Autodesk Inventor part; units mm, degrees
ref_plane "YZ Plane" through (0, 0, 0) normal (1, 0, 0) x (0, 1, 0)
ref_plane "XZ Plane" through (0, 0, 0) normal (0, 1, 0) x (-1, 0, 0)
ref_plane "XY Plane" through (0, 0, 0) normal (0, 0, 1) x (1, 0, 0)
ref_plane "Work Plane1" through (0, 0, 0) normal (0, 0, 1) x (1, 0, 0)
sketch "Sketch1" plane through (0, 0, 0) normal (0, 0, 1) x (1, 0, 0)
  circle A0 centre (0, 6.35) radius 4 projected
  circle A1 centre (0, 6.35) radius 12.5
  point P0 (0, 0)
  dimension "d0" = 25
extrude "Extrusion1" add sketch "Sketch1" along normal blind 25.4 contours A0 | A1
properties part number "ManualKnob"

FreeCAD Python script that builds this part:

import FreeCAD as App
import Part
import Sketcher

V = App.Vector

doc = App.newDocument("Part")
body = doc.addObject("PartDesign::Body", "Body")

# Sketch on XY plane
sketch1 = body.newObject("Sketcher::SketchObject", "Sketch")
sketch1.AttachmentSupport = (doc.getObject("XY_Plane"), [""])
sketch1.MapMode = "FlatFace"
sketch1.addGeometry(Part.Circle(V(0, 6, 0), V(0, 0, 1), 12), False)
sketch1.addConstraint([
    Sketcher.Constraint("PointOnObject", 0, 3, -2),
    Sketcher.Constraint("Diameter", 0, 25.0),
    Sketcher.Constraint("DistanceY", -1, 1, 0, 3, 6.35),
])
pad1 = body.newObject("PartDesign::Pad", "Pad")
pad1.Profile = sketch1
pad1.Length = 25.4

doc.recompute()
